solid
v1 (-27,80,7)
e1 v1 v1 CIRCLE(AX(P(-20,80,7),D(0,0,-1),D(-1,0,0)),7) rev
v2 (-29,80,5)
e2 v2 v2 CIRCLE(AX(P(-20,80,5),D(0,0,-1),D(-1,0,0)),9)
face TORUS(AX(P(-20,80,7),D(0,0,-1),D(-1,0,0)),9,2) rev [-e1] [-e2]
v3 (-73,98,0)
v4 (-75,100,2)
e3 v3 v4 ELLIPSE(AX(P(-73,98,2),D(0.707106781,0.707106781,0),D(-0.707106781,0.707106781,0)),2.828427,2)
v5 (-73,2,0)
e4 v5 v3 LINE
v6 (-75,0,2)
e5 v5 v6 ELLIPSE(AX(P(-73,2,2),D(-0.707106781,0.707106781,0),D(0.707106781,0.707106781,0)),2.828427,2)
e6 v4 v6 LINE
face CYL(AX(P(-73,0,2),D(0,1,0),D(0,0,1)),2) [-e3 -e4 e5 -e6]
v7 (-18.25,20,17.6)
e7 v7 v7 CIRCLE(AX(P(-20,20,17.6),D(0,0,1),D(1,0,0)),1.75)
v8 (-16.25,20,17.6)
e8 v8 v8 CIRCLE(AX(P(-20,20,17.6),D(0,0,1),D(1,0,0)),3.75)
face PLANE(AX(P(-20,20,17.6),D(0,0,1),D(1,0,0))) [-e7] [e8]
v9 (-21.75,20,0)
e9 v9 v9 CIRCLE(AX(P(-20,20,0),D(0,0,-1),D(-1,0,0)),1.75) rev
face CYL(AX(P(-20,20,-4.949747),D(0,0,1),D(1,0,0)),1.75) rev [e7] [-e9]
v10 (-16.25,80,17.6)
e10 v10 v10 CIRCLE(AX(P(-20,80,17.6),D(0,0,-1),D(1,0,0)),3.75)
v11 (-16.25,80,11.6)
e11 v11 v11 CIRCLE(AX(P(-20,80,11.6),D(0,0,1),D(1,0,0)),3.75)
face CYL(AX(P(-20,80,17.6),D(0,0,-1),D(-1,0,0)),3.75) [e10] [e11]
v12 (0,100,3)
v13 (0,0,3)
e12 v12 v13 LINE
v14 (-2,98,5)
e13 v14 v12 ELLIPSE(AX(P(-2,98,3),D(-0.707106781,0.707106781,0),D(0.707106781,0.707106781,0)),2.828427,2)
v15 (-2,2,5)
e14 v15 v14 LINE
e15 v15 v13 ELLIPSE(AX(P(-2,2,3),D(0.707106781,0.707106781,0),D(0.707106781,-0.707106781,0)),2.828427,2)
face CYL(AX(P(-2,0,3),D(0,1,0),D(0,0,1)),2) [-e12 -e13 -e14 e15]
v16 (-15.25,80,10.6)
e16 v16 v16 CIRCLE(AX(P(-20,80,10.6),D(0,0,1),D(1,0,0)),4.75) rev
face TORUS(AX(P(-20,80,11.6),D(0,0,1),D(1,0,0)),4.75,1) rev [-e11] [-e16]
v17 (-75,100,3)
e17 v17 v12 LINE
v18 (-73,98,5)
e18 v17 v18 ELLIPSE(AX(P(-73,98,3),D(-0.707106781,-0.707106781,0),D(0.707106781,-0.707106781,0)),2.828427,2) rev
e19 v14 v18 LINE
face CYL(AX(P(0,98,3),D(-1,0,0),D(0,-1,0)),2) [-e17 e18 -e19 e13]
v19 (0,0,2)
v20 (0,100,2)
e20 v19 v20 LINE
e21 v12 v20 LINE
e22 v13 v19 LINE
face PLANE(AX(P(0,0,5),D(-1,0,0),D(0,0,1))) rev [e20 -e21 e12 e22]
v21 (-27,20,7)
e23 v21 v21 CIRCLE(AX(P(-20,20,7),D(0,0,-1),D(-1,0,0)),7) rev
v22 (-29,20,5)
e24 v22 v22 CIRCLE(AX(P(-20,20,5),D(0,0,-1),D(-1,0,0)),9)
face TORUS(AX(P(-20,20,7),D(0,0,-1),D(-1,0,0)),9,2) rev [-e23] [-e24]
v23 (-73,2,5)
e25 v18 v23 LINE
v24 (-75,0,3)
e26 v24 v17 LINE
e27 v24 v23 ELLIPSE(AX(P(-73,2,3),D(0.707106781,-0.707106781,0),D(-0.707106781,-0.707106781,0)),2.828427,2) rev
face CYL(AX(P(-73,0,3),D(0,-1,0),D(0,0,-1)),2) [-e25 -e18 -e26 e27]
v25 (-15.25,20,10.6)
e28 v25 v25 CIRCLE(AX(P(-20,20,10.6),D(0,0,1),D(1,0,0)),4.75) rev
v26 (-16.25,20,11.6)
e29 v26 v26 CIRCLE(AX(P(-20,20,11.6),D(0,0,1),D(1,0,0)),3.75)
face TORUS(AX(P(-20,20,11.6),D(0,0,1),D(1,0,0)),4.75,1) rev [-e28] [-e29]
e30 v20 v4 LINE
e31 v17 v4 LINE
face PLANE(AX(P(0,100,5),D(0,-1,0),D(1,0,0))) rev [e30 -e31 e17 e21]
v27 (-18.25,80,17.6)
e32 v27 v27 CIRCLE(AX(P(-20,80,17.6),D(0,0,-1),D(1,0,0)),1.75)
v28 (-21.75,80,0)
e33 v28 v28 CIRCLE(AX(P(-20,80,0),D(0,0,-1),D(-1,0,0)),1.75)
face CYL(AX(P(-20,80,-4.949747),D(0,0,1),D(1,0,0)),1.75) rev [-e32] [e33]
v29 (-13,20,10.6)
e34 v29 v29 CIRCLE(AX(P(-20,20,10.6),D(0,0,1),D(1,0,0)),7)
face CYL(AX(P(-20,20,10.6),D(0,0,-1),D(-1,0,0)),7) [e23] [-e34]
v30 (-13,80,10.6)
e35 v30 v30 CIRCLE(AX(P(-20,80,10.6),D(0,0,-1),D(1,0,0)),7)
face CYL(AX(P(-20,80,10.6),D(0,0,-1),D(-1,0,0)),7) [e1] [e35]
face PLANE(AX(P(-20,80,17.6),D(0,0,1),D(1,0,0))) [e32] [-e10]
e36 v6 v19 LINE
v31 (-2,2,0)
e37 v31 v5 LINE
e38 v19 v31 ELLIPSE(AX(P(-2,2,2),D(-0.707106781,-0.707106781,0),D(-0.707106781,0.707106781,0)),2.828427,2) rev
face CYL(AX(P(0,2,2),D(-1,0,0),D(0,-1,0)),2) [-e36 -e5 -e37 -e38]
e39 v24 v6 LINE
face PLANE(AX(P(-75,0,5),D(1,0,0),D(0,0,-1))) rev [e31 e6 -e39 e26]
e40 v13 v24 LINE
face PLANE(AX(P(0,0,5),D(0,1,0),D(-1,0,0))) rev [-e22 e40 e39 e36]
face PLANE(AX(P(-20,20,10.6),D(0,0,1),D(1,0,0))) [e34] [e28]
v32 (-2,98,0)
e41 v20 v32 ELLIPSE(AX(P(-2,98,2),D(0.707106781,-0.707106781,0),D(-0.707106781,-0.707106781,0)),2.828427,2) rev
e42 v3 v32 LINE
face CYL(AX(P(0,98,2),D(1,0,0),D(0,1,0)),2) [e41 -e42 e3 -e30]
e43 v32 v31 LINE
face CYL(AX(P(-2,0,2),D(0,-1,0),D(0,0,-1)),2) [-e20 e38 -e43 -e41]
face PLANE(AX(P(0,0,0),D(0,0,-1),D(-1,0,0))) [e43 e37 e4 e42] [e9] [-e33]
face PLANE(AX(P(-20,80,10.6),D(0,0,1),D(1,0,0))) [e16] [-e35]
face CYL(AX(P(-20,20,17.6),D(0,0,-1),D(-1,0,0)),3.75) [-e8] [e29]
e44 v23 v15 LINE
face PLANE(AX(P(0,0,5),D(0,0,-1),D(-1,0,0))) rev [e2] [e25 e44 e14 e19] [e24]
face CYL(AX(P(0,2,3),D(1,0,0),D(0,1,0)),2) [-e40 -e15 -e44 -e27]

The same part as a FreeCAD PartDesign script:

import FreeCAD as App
import Part
import Sketcher
Q = App.Units.Quantity


def edges_at(feature, points):
    """Names of the edges that pass closest to the given points."""
    edges = feature.Shape.Edges
    near = lambda p: min(range(len(edges)), key=lambda i: edges[i].distToShape(Part.Vertex(*p))[0])
    return sorted({f"Edge{near(p) + 1}" for p in points})


def add_polygon(sketch, points):
    """Adds a closed chain of lines whose ends are joined by coincident constraints."""
    first, n = sketch.GeometryCount, len(points)
    for a, b in zip(points, points[1:] + points[:1]):
        sketch.addGeometry(Part.LineSegment(App.Vector(*a, 0), App.Vector(*b, 0)), False)
    for i in range(n):
        sketch.addConstraint(Sketcher.Constraint("Coincident", first + i, 2, first + (i + 1) % n, 1))

doc = App.newDocument("Part")
body = doc.addObject("PartDesign::Body", "Body")

# Sketch on XY plane
sketch1 = doc.addObject("Sketcher::SketchObject", "Sketch")
body.addObject(sketch1)
sketch1.AttachmentSupport = (doc.XY_Plane, [""])
sketch1.MapMode = "FlatFace"
add_polygon(sketch1, [(-75, 0), (0, 0), (0, 100), (-75, 100)])  # lines 0-3
sketch1.addConstraint(Sketcher.Constraint("Horizontal", 0))
sketch1.addConstraint(Sketcher.Constraint("Vertical", 1))
sketch1.addConstraint(Sketcher.Constraint("Horizontal", 2))
sketch1.addConstraint(Sketcher.Constraint("Vertical", 3))
sketch1.addConstraint(Sketcher.Constraint("Coincident", 0, 2, -1, 1))
sketch1.addConstraint(Sketcher.Constraint("DistanceX", 0, 1, 0, 2, Q("75 mm")))
sketch1.addConstraint(Sketcher.Constraint("DistanceY", 1, 1, 1, 2, Q("100 mm")))
pad1 = doc.addObject("PartDesign::Pad", "Pad")
body.addObject(pad1)
pad1.Profile = sketch1
pad1.Length = 5

# Sketch on XY plane
sketch2 = doc.addObject("Sketcher::SketchObject", "Sketch001")
body.addObject(sketch2)
sketch2.AttachmentSupport = (doc.XY_Plane, [""])
sketch2.MapMode = "FlatFace"
sketch2.AttachmentOffset = App.Placement(App.Vector(0, 0, 5), App.Rotation())
sketch2.addGeometry(Part.Circle(App.Vector(-20, 20, 0), App.Vector(0, 0, 1), 7), False)
sketch2.addConstraint(Sketcher.Constraint("Diameter", 0, Q("14 mm")))
sketch2.addConstraint(Sketcher.Constraint("DistanceX", 0, 3, -1, 1, Q("20 mm")))
sketch2.addConstraint(Sketcher.Constraint("DistanceY", -1, 1, 0, 3, Q("20 mm")))
pad2 = doc.addObject("PartDesign::Pad", "Pad001")
body.addObject(pad2)
pad2.Profile = sketch2
pad2.Length = 5.6

# Sketch on XY plane
sketch3 = doc.addObject("Sketcher::SketchObject", "Sketch002")
body.addObject(sketch3)
sketch3.AttachmentSupport = (doc.XY_Plane, [""])
sketch3.MapMode = "FlatFace"
sketch3.AttachmentOffset = App.Placement(App.Vector(0, 0, 10.6), App.Rotation())
sketch3.addGeometry(Part.Circle(App.Vector(-20, 20, 0), App.Vector(0, 0, 1), 3.8), False)
sketch3.addConstraint(Sketcher.Constraint("Diameter", 0, Q("7.5 mm")))
sketch3.addConstraint(Sketcher.Constraint("DistanceX", 0, 3, -1, 1, Q("20 mm")))
sketch3.addConstraint(Sketcher.Constraint("DistanceY", -1, 1, 0, 3, Q("20 mm")))
pad3 = doc.addObject("PartDesign::Pad", "Pad002")
body.addObject(pad3)
pad3.Profile = sketch3
pad3.Length = 7

# Sketch on XY plane
sketch4 = doc.addObject("Sketcher::SketchObject", "Sketch003")
body.addObject(sketch4)
sketch4.AttachmentSupport = (doc.XY_Plane, [""])
sketch4.MapMode = "FlatFace"
sketch4.AttachmentOffset = App.Placement(App.Vector(0, 0, 17.6), App.Rotation())
sketch4.addGeometry(Part.Circle(App.Vector(-20, 20, 0), App.Vector(0, 0, 1), 1.8), False)
sketch4.addConstraint(Sketcher.Constraint("Diameter", 0, Q("3.5 mm")))
sketch4.addConstraint(Sketcher.Constraint("DistanceX", 0, 3, -1, 1, Q("20 mm")))
sketch4.addConstraint(Sketcher.Constraint("DistanceY", -1, 1, 0, 3, Q("20 mm")))
pocket1 = doc.addObject("PartDesign::Pocket", "Pocket")
body.addObject(pocket1)
pocket1.Profile = sketch4
pocket1.Length = 17.6
doc.recompute()

datumplane = doc.addObject("PartDesign::Plane", "DatumPlane")
body.addObject(datumplane)
datumplane.AttachmentSupport = (doc.XZ_Plane, [""])
datumplane.MapMode = "FlatFace"
datumplane.AttachmentOffset = App.Placement(App.Vector(0, 0, -50), App.Rotation())
mirrored = doc.addObject("PartDesign::Mirrored", "Mirrored")
body.addObject(mirrored)
mirrored.Originals = [pad2, pad3, pocket1]
mirrored.MirrorPlane = (datumplane, [""])
body.Tip = mirrored
doc.recompute()

fillet = doc.addObject("PartDesign::Fillet", "Fillet")
body.addObject(fillet)
fillet.Base = (mirrored, edges_at(mirrored, [
    (-37.5, 100, 5),
    (-13, 20, 5),
    (-75, 50, 5),
    (-13, 80, 5),
    (-37.5, 0, 5),
    (-75, 50, 0),
    (-37.5, 100, 0),
    (0, 50, 0),
    (-37.5, 0, 0),
    (0, 50, 5),
]))
fillet.Radius = 2
doc.recompute()

fillet2 = doc.addObject("PartDesign::Fillet", "Fillet001")
body.addObject(fillet2)
fillet2.Base = (fillet, edges_at(fillet, [(-23.75, 20, 10.6), (-23.75, 80, 10.6)]))
fillet2.Radius = 1

doc.recompute()
